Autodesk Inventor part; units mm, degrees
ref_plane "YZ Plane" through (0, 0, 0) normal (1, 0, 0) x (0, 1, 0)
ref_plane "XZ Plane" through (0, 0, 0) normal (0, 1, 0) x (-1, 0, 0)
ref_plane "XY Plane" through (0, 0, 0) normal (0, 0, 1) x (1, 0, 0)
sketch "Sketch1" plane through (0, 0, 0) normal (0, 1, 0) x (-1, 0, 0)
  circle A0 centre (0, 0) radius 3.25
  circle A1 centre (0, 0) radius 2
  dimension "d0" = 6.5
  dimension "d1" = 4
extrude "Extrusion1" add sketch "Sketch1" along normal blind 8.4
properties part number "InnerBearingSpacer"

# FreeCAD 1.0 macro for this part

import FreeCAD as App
import Part
import Sketcher
Q = App.Units.Quantity

doc = App.newDocument("Part")
body = doc.addObject("PartDesign::Body", "Body")

sketch1 = doc.addObject("Sketcher::SketchObject", "Sketch")
body.addObject(sketch1)
sketch1.AttachmentSupport = (doc.XZ_Plane, [""])
sketch1.MapMode = "FlatFace"
sketch1.addGeometry([
    Part.Circle(App.Vector(0, 0, 0), App.Vector(0, 0, 1), 3.2),
    Part.Circle(App.Vector(0, 0, 0), App.Vector(0, 0, 1), 2),
], False)
sketch1.addConstraint([
    Sketcher.Constraint("Coincident", 0, 3, -1, 1),
    Sketcher.Constraint("Coincident", 1, 3, -1, 1),
    Sketcher.Constraint("Diameter", 1, Q("4 mm")),
    Sketcher.Constraint("Diameter", 0, Q("6.5 mm")),
])
pad1 = doc.addObject("PartDesign::Pad", "Pad")
body.addObject(pad1)
pad1.Profile = sketch1
pad1.Length = 8.4
pad1.Reversed = True

doc.recompute()
